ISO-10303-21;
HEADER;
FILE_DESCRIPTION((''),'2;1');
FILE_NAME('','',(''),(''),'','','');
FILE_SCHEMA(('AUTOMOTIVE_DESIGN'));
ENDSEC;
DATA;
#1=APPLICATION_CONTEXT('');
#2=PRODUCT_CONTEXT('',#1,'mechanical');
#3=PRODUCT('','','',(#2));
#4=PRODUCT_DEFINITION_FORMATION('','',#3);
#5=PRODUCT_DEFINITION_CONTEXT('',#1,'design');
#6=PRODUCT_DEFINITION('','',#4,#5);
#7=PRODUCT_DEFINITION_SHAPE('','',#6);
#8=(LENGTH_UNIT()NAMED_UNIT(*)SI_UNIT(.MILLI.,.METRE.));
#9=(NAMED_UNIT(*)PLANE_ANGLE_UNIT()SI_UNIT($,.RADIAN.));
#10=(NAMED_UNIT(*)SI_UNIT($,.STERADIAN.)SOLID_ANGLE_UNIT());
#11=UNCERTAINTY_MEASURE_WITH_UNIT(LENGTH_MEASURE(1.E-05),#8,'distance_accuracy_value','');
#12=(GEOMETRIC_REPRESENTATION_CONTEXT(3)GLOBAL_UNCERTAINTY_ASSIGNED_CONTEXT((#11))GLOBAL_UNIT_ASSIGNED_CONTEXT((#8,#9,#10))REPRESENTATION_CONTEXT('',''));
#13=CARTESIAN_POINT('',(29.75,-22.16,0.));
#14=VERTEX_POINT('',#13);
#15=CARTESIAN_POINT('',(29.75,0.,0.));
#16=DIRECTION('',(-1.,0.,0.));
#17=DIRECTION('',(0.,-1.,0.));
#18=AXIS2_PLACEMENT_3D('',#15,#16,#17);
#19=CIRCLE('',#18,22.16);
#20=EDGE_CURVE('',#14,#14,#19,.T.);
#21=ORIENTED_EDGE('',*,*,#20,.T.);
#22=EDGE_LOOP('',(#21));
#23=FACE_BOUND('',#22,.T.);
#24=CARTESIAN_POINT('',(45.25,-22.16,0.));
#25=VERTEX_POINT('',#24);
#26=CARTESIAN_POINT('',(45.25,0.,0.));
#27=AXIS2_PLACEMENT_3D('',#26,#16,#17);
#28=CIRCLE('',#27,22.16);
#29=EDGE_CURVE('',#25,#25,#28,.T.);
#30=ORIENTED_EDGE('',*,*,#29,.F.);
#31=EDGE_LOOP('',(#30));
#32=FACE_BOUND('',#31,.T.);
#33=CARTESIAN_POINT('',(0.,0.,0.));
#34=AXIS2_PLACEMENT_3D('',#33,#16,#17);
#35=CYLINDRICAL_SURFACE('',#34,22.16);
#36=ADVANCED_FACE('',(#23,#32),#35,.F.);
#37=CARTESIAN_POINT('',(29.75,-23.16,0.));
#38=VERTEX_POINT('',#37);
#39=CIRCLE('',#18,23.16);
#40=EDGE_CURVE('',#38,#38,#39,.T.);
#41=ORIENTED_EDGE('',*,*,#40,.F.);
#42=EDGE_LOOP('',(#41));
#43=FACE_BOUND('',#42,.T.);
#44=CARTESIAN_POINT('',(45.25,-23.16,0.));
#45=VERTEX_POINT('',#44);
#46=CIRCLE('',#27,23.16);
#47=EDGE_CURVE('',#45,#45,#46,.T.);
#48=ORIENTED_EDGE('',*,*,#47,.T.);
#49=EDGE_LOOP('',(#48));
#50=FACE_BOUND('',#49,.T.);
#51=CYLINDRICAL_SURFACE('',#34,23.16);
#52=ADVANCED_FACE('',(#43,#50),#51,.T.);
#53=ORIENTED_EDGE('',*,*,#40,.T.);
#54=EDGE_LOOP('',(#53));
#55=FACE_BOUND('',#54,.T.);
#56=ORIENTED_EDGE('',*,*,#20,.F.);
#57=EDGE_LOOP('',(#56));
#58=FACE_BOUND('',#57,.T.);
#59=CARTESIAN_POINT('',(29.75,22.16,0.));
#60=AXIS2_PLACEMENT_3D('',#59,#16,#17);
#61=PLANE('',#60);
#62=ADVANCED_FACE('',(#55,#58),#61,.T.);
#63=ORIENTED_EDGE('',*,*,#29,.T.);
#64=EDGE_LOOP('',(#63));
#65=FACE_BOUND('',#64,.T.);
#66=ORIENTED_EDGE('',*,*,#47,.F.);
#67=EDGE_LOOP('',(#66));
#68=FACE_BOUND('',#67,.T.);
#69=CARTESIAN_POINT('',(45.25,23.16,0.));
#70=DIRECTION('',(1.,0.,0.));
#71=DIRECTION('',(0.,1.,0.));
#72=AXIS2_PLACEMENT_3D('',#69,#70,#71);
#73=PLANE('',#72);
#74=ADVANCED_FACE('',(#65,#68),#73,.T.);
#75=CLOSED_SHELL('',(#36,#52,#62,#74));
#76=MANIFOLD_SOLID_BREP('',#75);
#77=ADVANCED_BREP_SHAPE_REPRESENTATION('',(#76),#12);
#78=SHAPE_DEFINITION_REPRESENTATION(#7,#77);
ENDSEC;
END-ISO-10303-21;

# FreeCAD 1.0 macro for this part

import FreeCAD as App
import Part
import Sketcher
Q = App.Units.Quantity

doc = App.newDocument("Part")
params = doc.addObject("Spreadsheet::Sheet", "Params")
for row, (alias, value) in enumerate([
    ("sketch1_height", "1 mm"),
    ("sketch1_width", "15.5 mm"),
    ("revolution_angle", "360 deg"),
], start=1):
    params.set(f"A{row}", alias)
    params.set(f"B{row}", "=" + value)
    params.setAlias(f"B{row}", alias)

body = doc.addObject("PartDesign::Body", "Body")

sketch1 = doc.addObject("Sketcher::SketchObject", "Sketch")
body.addObject(sketch1)
sketch1.AttachmentSupport = (doc.XY_Plane, [""])
sketch1.MapMode = "FlatFace"
sketch1.addGeometry([
    Part.LineSegment(App.Vector(29.8, 23.2, 0), App.Vector(29.8, 22.2, 0)),
    Part.LineSegment(App.Vector(29.8, 22.2, 0), App.Vector(45.2, 22.2, 0)),
    Part.LineSegment(App.Vector(45.2, 22.2, 0), App.Vector(45.2, 23.2, 0)),
    Part.LineSegment(App.Vector(45.2, 23.2, 0), App.Vector(29.8, 23.2, 0)),
], False)
sketch1.addConstraint([
    Sketcher.Constraint("Coincident", 0, 2, 1, 1),
    Sketcher.Constraint("Coincident", 1, 2, 2, 1),
    Sketcher.Constraint("Coincident", 2, 2, 3, 1),
    Sketcher.Constraint("Coincident", 3, 2, 0, 1),
    Sketcher.Constraint("Vertical", 0),
    Sketcher.Constraint("Horizontal", 1),
    Sketcher.Constraint("Vertical", 2),
    Sketcher.Constraint("Horizontal", 3),
    Sketcher.Constraint("DistanceY", 0, 2, 0, 1, Q("1 mm")),
    Sketcher.Constraint("DistanceX", 1, 1, 1, 2, Q("15.5 mm")),
    Sketcher.Constraint("DistanceX", -1, 1, 0, 2, Q("29.75 mm")),
    Sketcher.Constraint("DistanceY", -1, 1, 0, 2, Q("22.16 mm")),
])
sketch1.setExpression("Constraints[8]", "Params.sketch1_height")
sketch1.setExpression("Constraints[9]", "Params.sketch1_width")
revolution = doc.addObject("PartDesign::Revolution", "Revolution")
body.addObject(revolution)
revolution.Profile = sketch1
revolution.ReferenceAxis = (sketch1, ["H_Axis"])
revolution.setExpression("Angle", "Params.revolution_angle")

doc.recompute()
